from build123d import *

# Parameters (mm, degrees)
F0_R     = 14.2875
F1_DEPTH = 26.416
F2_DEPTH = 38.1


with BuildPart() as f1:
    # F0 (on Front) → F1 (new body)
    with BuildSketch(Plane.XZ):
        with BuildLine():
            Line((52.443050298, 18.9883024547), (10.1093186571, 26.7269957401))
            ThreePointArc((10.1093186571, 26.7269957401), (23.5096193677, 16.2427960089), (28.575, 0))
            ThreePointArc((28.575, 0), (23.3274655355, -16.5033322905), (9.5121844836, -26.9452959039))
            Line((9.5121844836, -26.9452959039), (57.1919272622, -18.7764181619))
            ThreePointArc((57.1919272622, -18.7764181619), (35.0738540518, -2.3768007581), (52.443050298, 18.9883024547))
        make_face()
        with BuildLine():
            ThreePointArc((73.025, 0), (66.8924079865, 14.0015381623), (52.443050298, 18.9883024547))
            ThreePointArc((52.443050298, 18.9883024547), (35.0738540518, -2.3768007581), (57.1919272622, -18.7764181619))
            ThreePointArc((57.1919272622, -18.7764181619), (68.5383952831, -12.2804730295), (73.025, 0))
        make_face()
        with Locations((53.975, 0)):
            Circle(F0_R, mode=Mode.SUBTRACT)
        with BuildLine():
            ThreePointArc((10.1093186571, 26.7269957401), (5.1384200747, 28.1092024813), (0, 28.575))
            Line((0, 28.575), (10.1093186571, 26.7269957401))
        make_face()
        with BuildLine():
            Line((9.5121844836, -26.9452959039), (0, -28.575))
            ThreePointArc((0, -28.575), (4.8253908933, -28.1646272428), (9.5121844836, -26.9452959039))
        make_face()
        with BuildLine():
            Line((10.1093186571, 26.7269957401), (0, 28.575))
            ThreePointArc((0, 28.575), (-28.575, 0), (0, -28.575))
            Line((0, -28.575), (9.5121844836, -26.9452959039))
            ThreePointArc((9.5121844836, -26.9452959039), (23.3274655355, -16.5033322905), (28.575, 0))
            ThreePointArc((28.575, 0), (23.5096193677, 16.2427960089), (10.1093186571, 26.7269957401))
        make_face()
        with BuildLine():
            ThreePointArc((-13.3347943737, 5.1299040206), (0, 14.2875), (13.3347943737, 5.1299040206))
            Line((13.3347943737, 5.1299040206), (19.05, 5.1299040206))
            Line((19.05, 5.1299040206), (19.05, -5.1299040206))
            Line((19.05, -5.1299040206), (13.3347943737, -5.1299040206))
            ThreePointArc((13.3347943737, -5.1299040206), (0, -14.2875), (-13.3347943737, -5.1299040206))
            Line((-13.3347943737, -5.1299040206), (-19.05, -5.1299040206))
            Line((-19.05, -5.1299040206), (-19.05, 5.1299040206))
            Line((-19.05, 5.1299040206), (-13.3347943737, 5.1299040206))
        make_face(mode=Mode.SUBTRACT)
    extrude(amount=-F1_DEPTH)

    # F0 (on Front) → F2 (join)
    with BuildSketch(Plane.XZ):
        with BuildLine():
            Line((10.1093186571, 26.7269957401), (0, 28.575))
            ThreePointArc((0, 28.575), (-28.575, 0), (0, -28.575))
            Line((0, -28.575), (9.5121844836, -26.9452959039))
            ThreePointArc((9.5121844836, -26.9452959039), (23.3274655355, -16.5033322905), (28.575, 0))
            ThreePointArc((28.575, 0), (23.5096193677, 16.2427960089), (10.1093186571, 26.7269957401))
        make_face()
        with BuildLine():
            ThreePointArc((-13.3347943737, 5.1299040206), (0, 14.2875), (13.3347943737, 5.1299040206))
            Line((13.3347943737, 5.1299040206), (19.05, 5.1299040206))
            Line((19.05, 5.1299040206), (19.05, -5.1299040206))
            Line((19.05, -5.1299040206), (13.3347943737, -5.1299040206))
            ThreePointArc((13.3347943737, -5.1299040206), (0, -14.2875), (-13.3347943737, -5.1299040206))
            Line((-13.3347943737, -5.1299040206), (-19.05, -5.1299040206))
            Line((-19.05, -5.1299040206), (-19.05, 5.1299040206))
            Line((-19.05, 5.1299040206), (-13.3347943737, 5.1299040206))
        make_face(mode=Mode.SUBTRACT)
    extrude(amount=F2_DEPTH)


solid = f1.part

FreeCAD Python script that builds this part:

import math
import FreeCAD as App
import Part
import Sketcher

V = App.Vector
Q = App.Units.Quantity

doc = App.newDocument("Part")
body = doc.addObject("PartDesign::Body", "Body")

sketch1 = body.newObject("Sketcher::SketchObject", "Sketch")
sketch1.AttachmentSupport = (doc.getObject("XZ_Plane"), [""])
sketch1.MapMode = "FlatFace"
sketch1.addGeometry(Part.LineSegment(V(52.44305, 18.988302, 0), V(10.109319, 26.726996, 0)), False)
sketch1.addGeometry(Part.ArcOfCircle(Part.Circle(V(0, 0, 0), V(0, 0, 1), 28.575), math.radians(69.28119), math.radians(90)), False)
sketch1.addGeometry(Part.ArcOfCircle(Part.Circle(V(0, 0, 0), V(0, 0, 1), 28.575), math.radians(90), math.radians(270)), False)
sketch1.addGeometry(Part.ArcOfCircle(Part.Circle(V(0, 0, 0), V(0, 0, 1), 28.575), math.radians(-90), math.radians(-70.556032)), False)
sketch1.addGeometry(Part.LineSegment(V(9.512184, -26.945296, 0), V(57.191927, -18.776418, 0)), False)
sketch1.addGeometry(Part.ArcOfCircle(Part.Circle(V(53.975, 0, 0), V(0, 0, 1), 19.05), math.radians(-80.278016), math.radians(94.612553)), False)
sketch1.addGeometry(Part.LineSegment(V(-19.05, 5.129904, 0), V(-13.334794, 5.129904, 0)), False)
sketch1.addGeometry(Part.ArcOfCircle(Part.Circle(V(0, 0, 0), V(0, 0, 1), 14.2875), math.radians(21.041767), math.radians(158.958233)), False)
sketch1.addGeometry(Part.LineSegment(V(13.334794, 5.129904, 0), V(19.05, 5.129904, 0)), False)
sketch1.addGeometry(Part.LineSegment(V(19.05, 5.129904, 0), V(19.05, -5.129904, 0)), False)
sketch1.addGeometry(Part.LineSegment(V(19.05, -5.129904, 0), V(13.334794, -5.129904, 0)), False)
sketch1.addGeometry(Part.ArcOfCircle(Part.Circle(V(0, 0, 0), V(0, 0, 1), 14.2875), math.radians(-158.958233), math.radians(-21.041767)), False)
sketch1.addGeometry(Part.LineSegment(V(-13.334794, -5.129904, 0), V(-19.05, -5.129904, 0)), False)
sketch1.addGeometry(Part.LineSegment(V(-19.05, -5.129904, 0), V(-19.05, 5.129904, 0)), False)
sketch1.addGeometry(Part.Circle(V(53.975, 0, 0), V(0, 0, 1), 14.2875), False)
sketch1.addConstraint(Sketcher.Constraint("Coincident", 0, 2, 1, 1))
sketch1.addConstraint(Sketcher.Constraint("Tangent", 1, 2, 2, 1))
sketch1.addConstraint(Sketcher.Constraint("Tangent", 2, 2, 3, 1))
sketch1.addConstraint(Sketcher.Constraint("Coincident", 3, 2, 4, 1))
sketch1.addConstraint(Sketcher.Constraint("Tangent", 4, 2, 5, 1))
sketch1.addConstraint(Sketcher.Constraint("Coincident", 5, 2, 0, 1))
sketch1.addConstraint(Sketcher.Constraint("Coincident", 6, 2, 7, 2))
sketch1.addConstraint(Sketcher.Constraint("Coincident", 7, 1, 8, 1))
sketch1.addConstraint(Sketcher.Constraint("Coincident", 8, 2, 9, 1))
sketch1.addConstraint(Sketcher.Constraint("Coincident", 9, 2, 10, 1))
sketch1.addConstraint(Sketcher.Constraint("Coincident", 10, 2, 11, 2))
sketch1.addConstraint(Sketcher.Constraint("Coincident", 11, 1, 12, 1))
sketch1.addConstraint(Sketcher.Constraint("Coincident", 12, 2, 13, 1))
sketch1.addConstraint(Sketcher.Constraint("Coincident", 13, 2, 6, 1))
sketch1.addConstraint(Sketcher.Constraint("Horizontal", 6))
sketch1.addConstraint(Sketcher.Constraint("Horizontal", 8))
sketch1.addConstraint(Sketcher.Constraint("Vertical", 9))
sketch1.addConstraint(Sketcher.Constraint("Horizontal", 10))
sketch1.addConstraint(Sketcher.Constraint("Horizontal", 12))
sketch1.addConstraint(Sketcher.Constraint("Vertical", 13))
sketch1.addConstraint(Sketcher.Constraint("Coincident", 1, 3, -1, 1))
sketch1.addConstraint(Sketcher.Constraint("Coincident", 7, 3, -1, 1))
sketch1.addConstraint(Sketcher.Constraint("Coincident", 11, 3, -1, 1))
sketch1.addConstraint(Sketcher.Constraint("Coincident", 14, 3, 5, 3))
sketch1.addConstraint(Sketcher.Constraint("Equal", 1, 2))
sketch1.addConstraint(Sketcher.Constraint("Equal", 2, 3))
sketch1.addConstraint(Sketcher.Constraint("Equal", 7, 11))
sketch1.addConstraint(Sketcher.Constraint("Equal", 11, 14))
sketch1.addConstraint(Sketcher.Constraint("Symmetric", 8, 2, 12, 2, -1, 1))
sketch1.addConstraint(Sketcher.Constraint("PointOnObject", 5, 3, -1))
sketch1.addConstraint(Sketcher.Constraint("PointOnObject", 1, 2, -2))
sketch1.addConstraint(Sketcher.Constraint("PointOnObject", 2, 2, -2))
sketch1.addConstraint(Sketcher.Constraint("Horizontal", 6, 2, 7, 1))
sketch1.addConstraint(Sketcher.Constraint("Horizontal", 10, 2, 11, 1))
sketch1.addConstraint(Sketcher.Constraint("Radius", 5, Q("0.75 in")))
sketch1.addConstraint(Sketcher.Constraint("Diameter", 14, Q("1.125 in")))
sketch1.addConstraint(Sketcher.Constraint("Radius", 1, Q("1.125 in")))
sketch1.addConstraint(Sketcher.Constraint("DistanceX", -1, 1, 8, 2, Q("0.75 in")))
sketch1.addConstraint(Sketcher.Constraint("DistanceX", -1, 1, 5, 3, Q("2.125 in")))
sketch1.addConstraint(Sketcher.Constraint("DistanceY", 4, 2, 5, 2, Q("1.4868 in")))
sketch1.addConstraint(Sketcher.Constraint("DistanceY", 9, 2, 9, 1, 10.259808))
sketch1.addConstraint(Sketcher.Constraint("Distance", 4, 48.374461))
sketch1.addConstraint(Sketcher.Constraint("DistanceX", -1, 1, 0, 2, 10.109319))
pad1 = body.newObject("PartDesign::Pad", "Pad")
pad1.Profile = sketch1
pad1.Length = Q("1.04 in")
pad1.Reversed = True

sketch2 = body.newObject("Sketcher::SketchObject", "Sketch001")
sketch2.AttachmentSupport = (doc.getObject("XZ_Plane"), [""])
sketch2.MapMode = "FlatFace"
sketch2.addGeometry(Part.LineSegment(V(10.109319, 26.726996, 0), V(0, 28.575, 0)), False)
sketch2.addGeometry(Part.ArcOfCircle(Part.Circle(V(0, 0, 0), V(0, 0, 1), 28.575), math.radians(90), math.radians(270)), False)
sketch2.addGeometry(Part.LineSegment(V(0, -28.575, 0), V(9.512184, -26.945296, 0)), False)
sketch2.addGeometry(Part.ArcOfCircle(Part.Circle(V(0, 0, 0), V(0, 0, 1), 28.575), math.radians(-70.556032), math.radians(0)), False)
sketch2.addGeometry(Part.ArcOfCircle(Part.Circle(V(0, 0, 0), V(0, 0, 1), 28.575), math.radians(0), math.radians(69.28119)), False)
sketch2.addGeometry(Part.LineSegment(V(-19.05, 5.129904, 0), V(-13.334794, 5.129904, 0)), False)
sketch2.addGeometry(Part.ArcOfCircle(Part.Circle(V(0, 0, 0), V(0, 0, 1), 14.2875), math.radians(21.041767), math.radians(158.958233)), False)
sketch2.addGeometry(Part.LineSegment(V(13.334794, 5.129904, 0), V(19.05, 5.129904, 0)), False)
sketch2.addGeometry(Part.LineSegment(V(19.05, 5.129904, 0), V(19.05, -5.129904, 0)), False)
sketch2.addGeometry(Part.LineSegment(V(19.05, -5.129904, 0), V(13.334794, -5.129904, 0)), False)
sketch2.addGeometry(Part.ArcOfCircle(Part.Circle(V(0, 0, 0), V(0, 0, 1), 14.2875), math.radians(-158.958233), math.radians(-21.041767)), False)
sketch2.addGeometry(Part.LineSegment(V(-13.334794, -5.129904, 0), V(-19.05, -5.129904, 0)), False)
sketch2.addGeometry(Part.LineSegment(V(-19.05, -5.129904, 0), V(-19.05, 5.129904, 0)), False)
sketch2.addConstraint(Sketcher.Constraint("Coincident", 0, 2, 1, 1))
sketch2.addConstraint(Sketcher.Constraint("Coincident", 1, 2, 2, 1))
sketch2.addConstraint(Sketcher.Constraint("Coincident", 2, 2, 3, 1))
sketch2.addConstraint(Sketcher.Constraint("Tangent", 3, 2, 4, 1))
sketch2.addConstraint(Sketcher.Constraint("Coincident", 4, 2, 0, 1))
sketch2.addConstraint(Sketcher.Constraint("Coincident", 5, 2, 6, 2))
sketch2.addConstraint(Sketcher.Constraint("Coincident", 6, 1, 7, 1))
sketch2.addConstraint(Sketcher.Constraint("Coincident", 7, 2, 8, 1))
sketch2.addConstraint(Sketcher.Constraint("Coincident", 8, 2, 9, 1))
sketch2.addConstraint(Sketcher.Constraint("Coincident", 9, 2, 10, 2))
sketch2.addConstraint(Sketcher.Constraint("Coincident", 10, 1, 11, 1))
sketch2.addConstraint(Sketcher.Constraint("Coincident", 11, 2, 12, 1))
sketch2.addConstraint(Sketcher.Constraint("Coincident", 12, 2, 5, 1))
sketch2.addConstraint(Sketcher.Constraint("Horizontal", 5))
sketch2.addConstraint(Sketcher.Constraint("Horizontal", 7))
sketch2.addConstraint(Sketcher.Constraint("Vertical", 8))
sketch2.addConstraint(Sketcher.Constraint("Horizontal", 9))
sketch2.addConstraint(Sketcher.Constraint("Horizontal", 11))
sketch2.addConstraint(Sketcher.Constraint("Vertical", 12))
sketch2.addConstraint(Sketcher.Constraint("Coincident", 1, 3, -1, 1))
sketch2.addConstraint(Sketcher.Constraint("Coincident", 3, 3, -1, 1))
sketch2.addConstraint(Sketcher.Constraint("Coincident", 6, 3, -1, 1))
sketch2.addConstraint(Sketcher.Constraint("Coincident", 10, 3, -1, 1))
sketch2.addConstraint(Sketcher.Constraint("Equal", 1, 3))
sketch2.addConstraint(Sketcher.Constraint("Equal", 3, 4))
sketch2.addConstraint(Sketcher.Constraint("Equal", 6, 10))
sketch2.addConstraint(Sketcher.Constraint("Symmetric", 7, 2, 11, 2, -1, 1))
sketch2.addConstraint(Sketcher.Constraint("PointOnObject", 0, 2, -2))
sketch2.addConstraint(Sketcher.Constraint("PointOnObject", 1, 2, -2))
sketch2.addConstraint(Sketcher.Constraint("PointOnObject", 3, 2, -1))
sketch2.addConstraint(Sketcher.Constraint("Horizontal", 5, 2, 6, 1))
sketch2.addConstraint(Sketcher.Constraint("Horizontal", 9, 2, 10, 1))
sketch2.addConstraint(Sketcher.Constraint("Radius", 1, Q("1.125 in")))
sketch2.addConstraint(Sketcher.Constraint("Radius", 6, Q("0.5625 in")))
sketch2.addConstraint(Sketcher.Constraint("DistanceX", -1, 1, 7, 2, Q("0.75 in")))
sketch2.addConstraint(Sketcher.Constraint("Distance", 0, Q("0.4046 in")))
sketch2.addConstraint(Sketcher.Constraint("DistanceY", 8, 2, 8, 1, 10.259808))
sketch2.addConstraint(Sketcher.Constraint("Distance", 2, 9.650782))
pad2 = body.newObject("PartDesign::Pad", "Pad001")
pad2.Profile = sketch2
pad2.Length = Q("1.5 in")

doc.recompute()
